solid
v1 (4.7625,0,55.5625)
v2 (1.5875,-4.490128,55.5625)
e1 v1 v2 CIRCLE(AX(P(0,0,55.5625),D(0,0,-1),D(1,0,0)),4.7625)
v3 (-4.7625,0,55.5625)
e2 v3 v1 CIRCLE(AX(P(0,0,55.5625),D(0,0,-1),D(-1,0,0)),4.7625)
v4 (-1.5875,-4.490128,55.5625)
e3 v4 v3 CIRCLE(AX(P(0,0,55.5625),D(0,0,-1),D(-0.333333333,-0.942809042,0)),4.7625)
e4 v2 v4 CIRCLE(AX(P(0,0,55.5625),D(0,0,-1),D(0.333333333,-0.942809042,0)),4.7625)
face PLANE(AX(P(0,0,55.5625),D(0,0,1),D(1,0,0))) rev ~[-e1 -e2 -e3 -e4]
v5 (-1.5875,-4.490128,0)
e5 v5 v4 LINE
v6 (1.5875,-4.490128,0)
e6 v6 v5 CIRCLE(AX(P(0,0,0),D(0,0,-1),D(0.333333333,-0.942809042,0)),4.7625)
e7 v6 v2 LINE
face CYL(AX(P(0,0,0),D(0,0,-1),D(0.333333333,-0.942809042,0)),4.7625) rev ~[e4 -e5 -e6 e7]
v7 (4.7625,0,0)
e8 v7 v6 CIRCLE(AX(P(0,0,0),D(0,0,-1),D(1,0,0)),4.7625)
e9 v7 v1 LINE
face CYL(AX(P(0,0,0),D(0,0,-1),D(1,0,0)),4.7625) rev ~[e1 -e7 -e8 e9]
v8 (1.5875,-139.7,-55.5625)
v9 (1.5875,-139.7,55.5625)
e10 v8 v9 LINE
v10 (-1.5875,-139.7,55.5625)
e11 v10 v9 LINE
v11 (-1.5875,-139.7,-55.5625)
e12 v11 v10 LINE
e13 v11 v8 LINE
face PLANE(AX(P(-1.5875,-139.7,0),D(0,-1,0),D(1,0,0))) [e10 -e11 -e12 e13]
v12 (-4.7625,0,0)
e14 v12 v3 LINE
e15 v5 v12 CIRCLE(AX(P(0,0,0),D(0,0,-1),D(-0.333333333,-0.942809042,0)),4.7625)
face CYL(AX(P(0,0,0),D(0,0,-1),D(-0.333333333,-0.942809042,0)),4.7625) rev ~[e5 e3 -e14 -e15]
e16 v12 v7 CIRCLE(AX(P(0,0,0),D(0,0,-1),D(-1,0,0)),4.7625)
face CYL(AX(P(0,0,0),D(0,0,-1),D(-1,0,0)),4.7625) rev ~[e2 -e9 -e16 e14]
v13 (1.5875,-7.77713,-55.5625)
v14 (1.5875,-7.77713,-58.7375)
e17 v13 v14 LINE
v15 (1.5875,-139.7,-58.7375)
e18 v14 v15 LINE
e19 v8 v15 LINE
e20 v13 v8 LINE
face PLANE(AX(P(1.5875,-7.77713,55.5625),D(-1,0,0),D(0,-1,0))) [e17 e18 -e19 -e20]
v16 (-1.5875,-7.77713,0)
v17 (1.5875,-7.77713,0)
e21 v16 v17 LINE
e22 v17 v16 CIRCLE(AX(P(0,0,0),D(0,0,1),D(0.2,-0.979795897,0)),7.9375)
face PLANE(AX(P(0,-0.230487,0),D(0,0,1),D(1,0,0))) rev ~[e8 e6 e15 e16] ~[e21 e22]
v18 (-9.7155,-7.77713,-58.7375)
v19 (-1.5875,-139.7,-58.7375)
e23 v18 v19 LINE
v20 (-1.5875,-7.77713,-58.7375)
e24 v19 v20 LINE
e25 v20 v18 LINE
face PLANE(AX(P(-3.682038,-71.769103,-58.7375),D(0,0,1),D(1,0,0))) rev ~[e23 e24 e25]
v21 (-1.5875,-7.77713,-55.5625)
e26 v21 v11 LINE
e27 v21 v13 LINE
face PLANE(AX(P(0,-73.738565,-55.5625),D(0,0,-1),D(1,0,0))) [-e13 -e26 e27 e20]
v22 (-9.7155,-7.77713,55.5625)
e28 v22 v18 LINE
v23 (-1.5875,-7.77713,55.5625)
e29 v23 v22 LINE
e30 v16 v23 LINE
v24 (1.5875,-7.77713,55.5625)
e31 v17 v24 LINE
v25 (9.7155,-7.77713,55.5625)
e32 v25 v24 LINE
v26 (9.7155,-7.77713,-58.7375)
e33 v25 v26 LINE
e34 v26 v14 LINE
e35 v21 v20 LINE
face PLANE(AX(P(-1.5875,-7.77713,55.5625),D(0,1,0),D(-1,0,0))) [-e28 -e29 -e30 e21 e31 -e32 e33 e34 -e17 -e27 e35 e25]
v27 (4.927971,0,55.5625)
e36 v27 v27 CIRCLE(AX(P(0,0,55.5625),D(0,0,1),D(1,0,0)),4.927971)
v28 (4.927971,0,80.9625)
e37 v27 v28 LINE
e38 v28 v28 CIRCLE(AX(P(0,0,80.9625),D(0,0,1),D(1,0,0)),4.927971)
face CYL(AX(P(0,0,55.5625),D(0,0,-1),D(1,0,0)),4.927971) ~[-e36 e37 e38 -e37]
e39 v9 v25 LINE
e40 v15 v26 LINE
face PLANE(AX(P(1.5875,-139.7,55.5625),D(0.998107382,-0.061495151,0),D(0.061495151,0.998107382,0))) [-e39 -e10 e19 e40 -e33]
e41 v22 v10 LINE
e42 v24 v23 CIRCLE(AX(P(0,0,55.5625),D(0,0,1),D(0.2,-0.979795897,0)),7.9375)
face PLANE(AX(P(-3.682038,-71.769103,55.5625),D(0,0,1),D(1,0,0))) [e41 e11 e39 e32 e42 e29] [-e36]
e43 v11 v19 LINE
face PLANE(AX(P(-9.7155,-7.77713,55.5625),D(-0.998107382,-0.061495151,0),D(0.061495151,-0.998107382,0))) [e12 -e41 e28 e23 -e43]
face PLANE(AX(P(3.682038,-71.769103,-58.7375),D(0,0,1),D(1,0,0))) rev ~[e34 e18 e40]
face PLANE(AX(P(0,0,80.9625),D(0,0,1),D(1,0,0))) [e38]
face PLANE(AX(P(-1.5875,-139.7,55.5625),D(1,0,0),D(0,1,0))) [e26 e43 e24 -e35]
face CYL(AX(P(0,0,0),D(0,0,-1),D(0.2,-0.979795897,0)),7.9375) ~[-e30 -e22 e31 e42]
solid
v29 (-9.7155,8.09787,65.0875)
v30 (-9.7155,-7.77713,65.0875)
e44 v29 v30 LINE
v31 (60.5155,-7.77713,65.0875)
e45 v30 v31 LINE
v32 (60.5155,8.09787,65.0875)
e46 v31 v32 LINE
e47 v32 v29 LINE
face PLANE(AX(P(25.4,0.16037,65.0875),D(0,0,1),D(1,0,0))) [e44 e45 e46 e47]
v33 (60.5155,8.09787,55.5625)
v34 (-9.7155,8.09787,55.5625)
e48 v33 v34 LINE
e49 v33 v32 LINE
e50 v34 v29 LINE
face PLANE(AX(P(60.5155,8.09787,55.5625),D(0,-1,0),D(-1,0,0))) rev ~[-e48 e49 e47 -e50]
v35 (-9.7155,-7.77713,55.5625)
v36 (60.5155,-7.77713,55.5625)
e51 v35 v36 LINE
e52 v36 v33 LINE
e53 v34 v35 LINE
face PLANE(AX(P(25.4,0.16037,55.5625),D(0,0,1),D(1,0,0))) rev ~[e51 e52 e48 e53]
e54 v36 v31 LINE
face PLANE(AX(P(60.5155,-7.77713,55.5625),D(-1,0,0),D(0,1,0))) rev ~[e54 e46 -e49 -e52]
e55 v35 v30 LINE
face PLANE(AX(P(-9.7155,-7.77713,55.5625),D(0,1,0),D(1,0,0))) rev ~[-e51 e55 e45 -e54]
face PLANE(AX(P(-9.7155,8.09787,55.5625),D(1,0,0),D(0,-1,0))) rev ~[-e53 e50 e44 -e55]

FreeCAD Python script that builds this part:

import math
import FreeCAD as App
import Part
import Sketcher
Q = App.Units.Quantity


def add_polygon(sketch, points):
    """Adds a closed chain of lines whose ends are joined by coincident constraints."""
    first, n = sketch.GeometryCount, len(points)
    for a, b in zip(points, points[1:] + points[:1]):
        sketch.addGeometry(Part.LineSegment(App.Vector(*a, 0), App.Vector(*b, 0)), False)
    for i in range(n):
        sketch.addConstraint(Sketcher.Constraint("Coincident", first + i, 2, first + (i + 1) % n, 1))

doc = App.newDocument("Part")
body = doc.addObject("PartDesign::Body", "Body")

# Sketch on XY plane
sketch1 = body.newObject("Sketcher::SketchObject", "Sketch")
sketch1.AttachmentSupport = (doc.getObject("XY_Plane"), [""])
sketch1.MapMode = "FlatFace"
sketch1.addGeometry([
    Part.ArcOfCircle(Part.Circle(App.Vector(0, 0, 0), App.Vector(0, 0, 1), 7.9375), math.radians(-78.463041), math.radians(258.463041)),  # 0
    Part.LineSegment(App.Vector(-1.5875, -7.77713, 0), App.Vector(-1.5875, -139.7, 0)),  # 1
    Part.LineSegment(App.Vector(-1.5875, -139.7, 0), App.Vector(1.5875, -139.7, 0)),  # 2
    Part.LineSegment(App.Vector(1.5875, -139.7, 0), App.Vector(1.5875, -7.77713, 0)),  # 3
    Part.ArcOfCircle(Part.Circle(App.Vector(0, 0, 0), App.Vector(0, 0, 1), 4.7625), math.radians(180), math.radians(250.528779)),  # 4
    Part.ArcOfCircle(Part.Circle(App.Vector(0, 0, 0), App.Vector(0, 0, 1), 4.7625), math.radians(0), math.radians(180)),  # 5
    Part.ArcOfCircle(Part.Circle(App.Vector(0, 0, 0), App.Vector(0, 0, 1), 4.7625), math.radians(-70.528779), math.radians(0)),  # 6
    Part.ArcOfCircle(Part.Circle(App.Vector(0, 0, 0), App.Vector(0, 0, 1), 4.7625), math.radians(-109.471221), math.radians(-70.528779)),  # 7
], False)
sketch1.addConstraint([
    Sketcher.Constraint("Coincident", 0, 2, 1, 1),
    Sketcher.Constraint("Coincident", 1, 2, 2, 1),
    Sketcher.Constraint("Coincident", 2, 2, 3, 1),
    Sketcher.Constraint("Coincident", 3, 2, 0, 1),
    Sketcher.Constraint("Tangent", 4, 1, 5, 2),
    Sketcher.Constraint("Tangent", 5, 1, 6, 2),
    Sketcher.Constraint("Tangent", 6, 1, 7, 2),
    Sketcher.Constraint("Tangent", 7, 1, 4, 2),
    Sketcher.Constraint("Vertical", 1),
    Sketcher.Constraint("Horizontal", 2),
    Sketcher.Constraint("Vertical", 3),
    Sketcher.Constraint("Coincident", 0, 3, -1, 1),
    Sketcher.Constraint("Coincident", 4, 3, -1, 1),
    Sketcher.Constraint("Equal", 4, 5),
    Sketcher.Constraint("PointOnObject", 4, 1, -1),
    Sketcher.Constraint("PointOnObject", 5, 1, -1),
    Sketcher.Constraint("Horizontal", 0, 2, 3, 2),
    Sketcher.Constraint("Horizontal", 6, 1, 7, 1),
    Sketcher.Constraint("Vertical", 3, 2, 6, 1),
    Sketcher.Constraint("Radius", 0, Q("0.3125 in")),
    Sketcher.Constraint("Radius", 4, Q("0.1875 in")),
    Sketcher.Constraint("DistanceY", 1, 2, -1, 1, Q("5.5 in")),
    Sketcher.Constraint("DistanceX", 2, 1, 2, 2, Q("0.125 in")),
])
pad1 = body.newObject("PartDesign::Pad", "Pad")
pad1.Profile = sketch1
pad1.Length = Q("2.1875 in")

# Sketch on XY plane
sketch2 = body.newObject("Sketcher::SketchObject", "Sketch001")
sketch2.AttachmentSupport = (doc.getObject("XY_Plane"), [""])
sketch2.MapMode = "FlatFace"
add_polygon(sketch2, [(-1.5875, -139.7), (-1.5875, -7.77713), (1.5875, -7.77713), (1.5875, -139.7)])  # lines 0-3
sketch2.addConstraint([
    Sketcher.Constraint("Vertical", 0),
    Sketcher.Constraint("Horizontal", 1),
    Sketcher.Constraint("Vertical", 2),
    Sketcher.Constraint("Horizontal", 3),
    Sketcher.Constraint("DistanceY", 2, 2, -1, 1, Q("5.5 in")),
    Sketcher.Constraint("DistanceX", 1, 1, 1, 2, Q("0.125 in")),
    Sketcher.Constraint("DistanceX", 0, 2, -1, 1, Q("0.0625 in")),
    Sketcher.Constraint("DistanceY", 0, 1, 0, 2, 131.92287),
])
pad2 = body.newObject("PartDesign::Pad", "Pad001")
pad2.Profile = sketch2
pad2.Length = Q("2.1875 in")
pad2.Reversed = True

# Sketch on XY plane
sketch3 = body.newObject("Sketcher::SketchObject", "Sketch002")
sketch3.AttachmentSupport = (doc.getObject("XY_Plane"), [""])
sketch3.MapMode = "FlatFace"
sketch3.AttachmentOffset = App.Placement(App.Vector(0, 0, 2.1875 * 25.4), App.Rotation())
add_polygon(sketch3, [(-1.5875, -139.7), (-1.5875, -7.77713), (-9.7155, -7.77713)])  # lines 0-2
add_polygon(sketch3, [(9.7155, -7.77713), (1.5875, -7.77713), (1.5875, -139.7)])  # lines 3-5
sketch3.addConstraint([
    Sketcher.Constraint("Vertical", 0),
    Sketcher.Constraint("Horizontal", 1),
    Sketcher.Constraint("Horizontal", 3),
    Sketcher.Constraint("Vertical", 4),
    Sketcher.Constraint("Symmetric", 0, 2, 3, 2, -2),
    Sketcher.Constraint("Horizontal", 2, 2, 4, 2),
    Sketcher.Constraint("Equal", 1, 3),
    Sketcher.Constraint("DistanceX", 1, 2, 1, 1, Q("0.32 in")),
    Sketcher.Constraint("DistanceY", 2, 2, -1, 1, Q("5.5 in")),
    Sketcher.Constraint("DistanceX", 0, 2, -1, 1, Q("0.0625 in")),
    Sketcher.Constraint("DistanceY", 0, 1, 0, 2, 131.92287),
])
pad3 = body.newObject("PartDesign::Pad", "Pad002")
pad3.Profile = sketch3
pad3.Length = Q("4.5 in")
pad3.Reversed = True

# Sketch on XY plane
sketch4 = body.newObject("Sketcher::SketchObject", "Sketch003")
sketch4.AttachmentSupport = (doc.getObject("XY_Plane"), [""])
sketch4.MapMode = "FlatFace"
sketch4.AttachmentOffset = App.Placement(App.Vector(0, 0, 2.1875 * 25.4), App.Rotation())
sketch4.addGeometry(Part.Circle(App.Vector(0, 0, 0), App.Vector(0, 0, 1), 4.927971), False)
sketch4.addConstraint([
    Sketcher.Constraint("Coincident", 0, 3, -1, 1),
    Sketcher.Constraint("Diameter", 0, 9.855941),
])
pad4 = body.newObject("PartDesign::Pad", "Pad003")
pad4.Profile = sketch4
pad4.Length = Q("1 in")
body2 = doc.addObject("PartDesign::Body", "Body001")

# Sketch on XY plane
sketch5 = body2.newObject("Sketcher::SketchObject", "Sketch004")
sketch5.AttachmentSupport = (doc.getObject("XY_Plane001"), [""])
sketch5.MapMode = "FlatFace"
sketch5.AttachmentOffset = App.Placement(App.Vector(0, 0, 2.1875 * 25.4), App.Rotation())
add_polygon(sketch5, [(-9.7155, 8.09787), (-9.7155, -7.77713), (60.5155, -7.77713), (60.5155, 8.09787)])  # lines 0-3
sketch5.addConstraint([
    Sketcher.Constraint("Vertical", 0),
    Sketcher.Constraint("Horizontal", 1),
    Sketcher.Constraint("Vertical", 2),
    Sketcher.Constraint("Horizontal", 3),
    Sketcher.Constraint("DistanceX", 1, 1, 1, 2, Q("2.765 in")),
    Sketcher.Constraint("DistanceY", 0, 2, 0, 1, Q("0.625 in")),
    Sketcher.Constraint("DistanceX", 0, 2, -1, 1, Q("0.3825 in")),
    Sketcher.Constraint("DistanceY", 0, 2, -1, 1, 7.77713),
])
pad5 = body2.newObject("PartDesign::Pad", "Pad004")
pad5.Profile = sketch5
pad5.Length = Q("0.375 in")

doc.recompute()
